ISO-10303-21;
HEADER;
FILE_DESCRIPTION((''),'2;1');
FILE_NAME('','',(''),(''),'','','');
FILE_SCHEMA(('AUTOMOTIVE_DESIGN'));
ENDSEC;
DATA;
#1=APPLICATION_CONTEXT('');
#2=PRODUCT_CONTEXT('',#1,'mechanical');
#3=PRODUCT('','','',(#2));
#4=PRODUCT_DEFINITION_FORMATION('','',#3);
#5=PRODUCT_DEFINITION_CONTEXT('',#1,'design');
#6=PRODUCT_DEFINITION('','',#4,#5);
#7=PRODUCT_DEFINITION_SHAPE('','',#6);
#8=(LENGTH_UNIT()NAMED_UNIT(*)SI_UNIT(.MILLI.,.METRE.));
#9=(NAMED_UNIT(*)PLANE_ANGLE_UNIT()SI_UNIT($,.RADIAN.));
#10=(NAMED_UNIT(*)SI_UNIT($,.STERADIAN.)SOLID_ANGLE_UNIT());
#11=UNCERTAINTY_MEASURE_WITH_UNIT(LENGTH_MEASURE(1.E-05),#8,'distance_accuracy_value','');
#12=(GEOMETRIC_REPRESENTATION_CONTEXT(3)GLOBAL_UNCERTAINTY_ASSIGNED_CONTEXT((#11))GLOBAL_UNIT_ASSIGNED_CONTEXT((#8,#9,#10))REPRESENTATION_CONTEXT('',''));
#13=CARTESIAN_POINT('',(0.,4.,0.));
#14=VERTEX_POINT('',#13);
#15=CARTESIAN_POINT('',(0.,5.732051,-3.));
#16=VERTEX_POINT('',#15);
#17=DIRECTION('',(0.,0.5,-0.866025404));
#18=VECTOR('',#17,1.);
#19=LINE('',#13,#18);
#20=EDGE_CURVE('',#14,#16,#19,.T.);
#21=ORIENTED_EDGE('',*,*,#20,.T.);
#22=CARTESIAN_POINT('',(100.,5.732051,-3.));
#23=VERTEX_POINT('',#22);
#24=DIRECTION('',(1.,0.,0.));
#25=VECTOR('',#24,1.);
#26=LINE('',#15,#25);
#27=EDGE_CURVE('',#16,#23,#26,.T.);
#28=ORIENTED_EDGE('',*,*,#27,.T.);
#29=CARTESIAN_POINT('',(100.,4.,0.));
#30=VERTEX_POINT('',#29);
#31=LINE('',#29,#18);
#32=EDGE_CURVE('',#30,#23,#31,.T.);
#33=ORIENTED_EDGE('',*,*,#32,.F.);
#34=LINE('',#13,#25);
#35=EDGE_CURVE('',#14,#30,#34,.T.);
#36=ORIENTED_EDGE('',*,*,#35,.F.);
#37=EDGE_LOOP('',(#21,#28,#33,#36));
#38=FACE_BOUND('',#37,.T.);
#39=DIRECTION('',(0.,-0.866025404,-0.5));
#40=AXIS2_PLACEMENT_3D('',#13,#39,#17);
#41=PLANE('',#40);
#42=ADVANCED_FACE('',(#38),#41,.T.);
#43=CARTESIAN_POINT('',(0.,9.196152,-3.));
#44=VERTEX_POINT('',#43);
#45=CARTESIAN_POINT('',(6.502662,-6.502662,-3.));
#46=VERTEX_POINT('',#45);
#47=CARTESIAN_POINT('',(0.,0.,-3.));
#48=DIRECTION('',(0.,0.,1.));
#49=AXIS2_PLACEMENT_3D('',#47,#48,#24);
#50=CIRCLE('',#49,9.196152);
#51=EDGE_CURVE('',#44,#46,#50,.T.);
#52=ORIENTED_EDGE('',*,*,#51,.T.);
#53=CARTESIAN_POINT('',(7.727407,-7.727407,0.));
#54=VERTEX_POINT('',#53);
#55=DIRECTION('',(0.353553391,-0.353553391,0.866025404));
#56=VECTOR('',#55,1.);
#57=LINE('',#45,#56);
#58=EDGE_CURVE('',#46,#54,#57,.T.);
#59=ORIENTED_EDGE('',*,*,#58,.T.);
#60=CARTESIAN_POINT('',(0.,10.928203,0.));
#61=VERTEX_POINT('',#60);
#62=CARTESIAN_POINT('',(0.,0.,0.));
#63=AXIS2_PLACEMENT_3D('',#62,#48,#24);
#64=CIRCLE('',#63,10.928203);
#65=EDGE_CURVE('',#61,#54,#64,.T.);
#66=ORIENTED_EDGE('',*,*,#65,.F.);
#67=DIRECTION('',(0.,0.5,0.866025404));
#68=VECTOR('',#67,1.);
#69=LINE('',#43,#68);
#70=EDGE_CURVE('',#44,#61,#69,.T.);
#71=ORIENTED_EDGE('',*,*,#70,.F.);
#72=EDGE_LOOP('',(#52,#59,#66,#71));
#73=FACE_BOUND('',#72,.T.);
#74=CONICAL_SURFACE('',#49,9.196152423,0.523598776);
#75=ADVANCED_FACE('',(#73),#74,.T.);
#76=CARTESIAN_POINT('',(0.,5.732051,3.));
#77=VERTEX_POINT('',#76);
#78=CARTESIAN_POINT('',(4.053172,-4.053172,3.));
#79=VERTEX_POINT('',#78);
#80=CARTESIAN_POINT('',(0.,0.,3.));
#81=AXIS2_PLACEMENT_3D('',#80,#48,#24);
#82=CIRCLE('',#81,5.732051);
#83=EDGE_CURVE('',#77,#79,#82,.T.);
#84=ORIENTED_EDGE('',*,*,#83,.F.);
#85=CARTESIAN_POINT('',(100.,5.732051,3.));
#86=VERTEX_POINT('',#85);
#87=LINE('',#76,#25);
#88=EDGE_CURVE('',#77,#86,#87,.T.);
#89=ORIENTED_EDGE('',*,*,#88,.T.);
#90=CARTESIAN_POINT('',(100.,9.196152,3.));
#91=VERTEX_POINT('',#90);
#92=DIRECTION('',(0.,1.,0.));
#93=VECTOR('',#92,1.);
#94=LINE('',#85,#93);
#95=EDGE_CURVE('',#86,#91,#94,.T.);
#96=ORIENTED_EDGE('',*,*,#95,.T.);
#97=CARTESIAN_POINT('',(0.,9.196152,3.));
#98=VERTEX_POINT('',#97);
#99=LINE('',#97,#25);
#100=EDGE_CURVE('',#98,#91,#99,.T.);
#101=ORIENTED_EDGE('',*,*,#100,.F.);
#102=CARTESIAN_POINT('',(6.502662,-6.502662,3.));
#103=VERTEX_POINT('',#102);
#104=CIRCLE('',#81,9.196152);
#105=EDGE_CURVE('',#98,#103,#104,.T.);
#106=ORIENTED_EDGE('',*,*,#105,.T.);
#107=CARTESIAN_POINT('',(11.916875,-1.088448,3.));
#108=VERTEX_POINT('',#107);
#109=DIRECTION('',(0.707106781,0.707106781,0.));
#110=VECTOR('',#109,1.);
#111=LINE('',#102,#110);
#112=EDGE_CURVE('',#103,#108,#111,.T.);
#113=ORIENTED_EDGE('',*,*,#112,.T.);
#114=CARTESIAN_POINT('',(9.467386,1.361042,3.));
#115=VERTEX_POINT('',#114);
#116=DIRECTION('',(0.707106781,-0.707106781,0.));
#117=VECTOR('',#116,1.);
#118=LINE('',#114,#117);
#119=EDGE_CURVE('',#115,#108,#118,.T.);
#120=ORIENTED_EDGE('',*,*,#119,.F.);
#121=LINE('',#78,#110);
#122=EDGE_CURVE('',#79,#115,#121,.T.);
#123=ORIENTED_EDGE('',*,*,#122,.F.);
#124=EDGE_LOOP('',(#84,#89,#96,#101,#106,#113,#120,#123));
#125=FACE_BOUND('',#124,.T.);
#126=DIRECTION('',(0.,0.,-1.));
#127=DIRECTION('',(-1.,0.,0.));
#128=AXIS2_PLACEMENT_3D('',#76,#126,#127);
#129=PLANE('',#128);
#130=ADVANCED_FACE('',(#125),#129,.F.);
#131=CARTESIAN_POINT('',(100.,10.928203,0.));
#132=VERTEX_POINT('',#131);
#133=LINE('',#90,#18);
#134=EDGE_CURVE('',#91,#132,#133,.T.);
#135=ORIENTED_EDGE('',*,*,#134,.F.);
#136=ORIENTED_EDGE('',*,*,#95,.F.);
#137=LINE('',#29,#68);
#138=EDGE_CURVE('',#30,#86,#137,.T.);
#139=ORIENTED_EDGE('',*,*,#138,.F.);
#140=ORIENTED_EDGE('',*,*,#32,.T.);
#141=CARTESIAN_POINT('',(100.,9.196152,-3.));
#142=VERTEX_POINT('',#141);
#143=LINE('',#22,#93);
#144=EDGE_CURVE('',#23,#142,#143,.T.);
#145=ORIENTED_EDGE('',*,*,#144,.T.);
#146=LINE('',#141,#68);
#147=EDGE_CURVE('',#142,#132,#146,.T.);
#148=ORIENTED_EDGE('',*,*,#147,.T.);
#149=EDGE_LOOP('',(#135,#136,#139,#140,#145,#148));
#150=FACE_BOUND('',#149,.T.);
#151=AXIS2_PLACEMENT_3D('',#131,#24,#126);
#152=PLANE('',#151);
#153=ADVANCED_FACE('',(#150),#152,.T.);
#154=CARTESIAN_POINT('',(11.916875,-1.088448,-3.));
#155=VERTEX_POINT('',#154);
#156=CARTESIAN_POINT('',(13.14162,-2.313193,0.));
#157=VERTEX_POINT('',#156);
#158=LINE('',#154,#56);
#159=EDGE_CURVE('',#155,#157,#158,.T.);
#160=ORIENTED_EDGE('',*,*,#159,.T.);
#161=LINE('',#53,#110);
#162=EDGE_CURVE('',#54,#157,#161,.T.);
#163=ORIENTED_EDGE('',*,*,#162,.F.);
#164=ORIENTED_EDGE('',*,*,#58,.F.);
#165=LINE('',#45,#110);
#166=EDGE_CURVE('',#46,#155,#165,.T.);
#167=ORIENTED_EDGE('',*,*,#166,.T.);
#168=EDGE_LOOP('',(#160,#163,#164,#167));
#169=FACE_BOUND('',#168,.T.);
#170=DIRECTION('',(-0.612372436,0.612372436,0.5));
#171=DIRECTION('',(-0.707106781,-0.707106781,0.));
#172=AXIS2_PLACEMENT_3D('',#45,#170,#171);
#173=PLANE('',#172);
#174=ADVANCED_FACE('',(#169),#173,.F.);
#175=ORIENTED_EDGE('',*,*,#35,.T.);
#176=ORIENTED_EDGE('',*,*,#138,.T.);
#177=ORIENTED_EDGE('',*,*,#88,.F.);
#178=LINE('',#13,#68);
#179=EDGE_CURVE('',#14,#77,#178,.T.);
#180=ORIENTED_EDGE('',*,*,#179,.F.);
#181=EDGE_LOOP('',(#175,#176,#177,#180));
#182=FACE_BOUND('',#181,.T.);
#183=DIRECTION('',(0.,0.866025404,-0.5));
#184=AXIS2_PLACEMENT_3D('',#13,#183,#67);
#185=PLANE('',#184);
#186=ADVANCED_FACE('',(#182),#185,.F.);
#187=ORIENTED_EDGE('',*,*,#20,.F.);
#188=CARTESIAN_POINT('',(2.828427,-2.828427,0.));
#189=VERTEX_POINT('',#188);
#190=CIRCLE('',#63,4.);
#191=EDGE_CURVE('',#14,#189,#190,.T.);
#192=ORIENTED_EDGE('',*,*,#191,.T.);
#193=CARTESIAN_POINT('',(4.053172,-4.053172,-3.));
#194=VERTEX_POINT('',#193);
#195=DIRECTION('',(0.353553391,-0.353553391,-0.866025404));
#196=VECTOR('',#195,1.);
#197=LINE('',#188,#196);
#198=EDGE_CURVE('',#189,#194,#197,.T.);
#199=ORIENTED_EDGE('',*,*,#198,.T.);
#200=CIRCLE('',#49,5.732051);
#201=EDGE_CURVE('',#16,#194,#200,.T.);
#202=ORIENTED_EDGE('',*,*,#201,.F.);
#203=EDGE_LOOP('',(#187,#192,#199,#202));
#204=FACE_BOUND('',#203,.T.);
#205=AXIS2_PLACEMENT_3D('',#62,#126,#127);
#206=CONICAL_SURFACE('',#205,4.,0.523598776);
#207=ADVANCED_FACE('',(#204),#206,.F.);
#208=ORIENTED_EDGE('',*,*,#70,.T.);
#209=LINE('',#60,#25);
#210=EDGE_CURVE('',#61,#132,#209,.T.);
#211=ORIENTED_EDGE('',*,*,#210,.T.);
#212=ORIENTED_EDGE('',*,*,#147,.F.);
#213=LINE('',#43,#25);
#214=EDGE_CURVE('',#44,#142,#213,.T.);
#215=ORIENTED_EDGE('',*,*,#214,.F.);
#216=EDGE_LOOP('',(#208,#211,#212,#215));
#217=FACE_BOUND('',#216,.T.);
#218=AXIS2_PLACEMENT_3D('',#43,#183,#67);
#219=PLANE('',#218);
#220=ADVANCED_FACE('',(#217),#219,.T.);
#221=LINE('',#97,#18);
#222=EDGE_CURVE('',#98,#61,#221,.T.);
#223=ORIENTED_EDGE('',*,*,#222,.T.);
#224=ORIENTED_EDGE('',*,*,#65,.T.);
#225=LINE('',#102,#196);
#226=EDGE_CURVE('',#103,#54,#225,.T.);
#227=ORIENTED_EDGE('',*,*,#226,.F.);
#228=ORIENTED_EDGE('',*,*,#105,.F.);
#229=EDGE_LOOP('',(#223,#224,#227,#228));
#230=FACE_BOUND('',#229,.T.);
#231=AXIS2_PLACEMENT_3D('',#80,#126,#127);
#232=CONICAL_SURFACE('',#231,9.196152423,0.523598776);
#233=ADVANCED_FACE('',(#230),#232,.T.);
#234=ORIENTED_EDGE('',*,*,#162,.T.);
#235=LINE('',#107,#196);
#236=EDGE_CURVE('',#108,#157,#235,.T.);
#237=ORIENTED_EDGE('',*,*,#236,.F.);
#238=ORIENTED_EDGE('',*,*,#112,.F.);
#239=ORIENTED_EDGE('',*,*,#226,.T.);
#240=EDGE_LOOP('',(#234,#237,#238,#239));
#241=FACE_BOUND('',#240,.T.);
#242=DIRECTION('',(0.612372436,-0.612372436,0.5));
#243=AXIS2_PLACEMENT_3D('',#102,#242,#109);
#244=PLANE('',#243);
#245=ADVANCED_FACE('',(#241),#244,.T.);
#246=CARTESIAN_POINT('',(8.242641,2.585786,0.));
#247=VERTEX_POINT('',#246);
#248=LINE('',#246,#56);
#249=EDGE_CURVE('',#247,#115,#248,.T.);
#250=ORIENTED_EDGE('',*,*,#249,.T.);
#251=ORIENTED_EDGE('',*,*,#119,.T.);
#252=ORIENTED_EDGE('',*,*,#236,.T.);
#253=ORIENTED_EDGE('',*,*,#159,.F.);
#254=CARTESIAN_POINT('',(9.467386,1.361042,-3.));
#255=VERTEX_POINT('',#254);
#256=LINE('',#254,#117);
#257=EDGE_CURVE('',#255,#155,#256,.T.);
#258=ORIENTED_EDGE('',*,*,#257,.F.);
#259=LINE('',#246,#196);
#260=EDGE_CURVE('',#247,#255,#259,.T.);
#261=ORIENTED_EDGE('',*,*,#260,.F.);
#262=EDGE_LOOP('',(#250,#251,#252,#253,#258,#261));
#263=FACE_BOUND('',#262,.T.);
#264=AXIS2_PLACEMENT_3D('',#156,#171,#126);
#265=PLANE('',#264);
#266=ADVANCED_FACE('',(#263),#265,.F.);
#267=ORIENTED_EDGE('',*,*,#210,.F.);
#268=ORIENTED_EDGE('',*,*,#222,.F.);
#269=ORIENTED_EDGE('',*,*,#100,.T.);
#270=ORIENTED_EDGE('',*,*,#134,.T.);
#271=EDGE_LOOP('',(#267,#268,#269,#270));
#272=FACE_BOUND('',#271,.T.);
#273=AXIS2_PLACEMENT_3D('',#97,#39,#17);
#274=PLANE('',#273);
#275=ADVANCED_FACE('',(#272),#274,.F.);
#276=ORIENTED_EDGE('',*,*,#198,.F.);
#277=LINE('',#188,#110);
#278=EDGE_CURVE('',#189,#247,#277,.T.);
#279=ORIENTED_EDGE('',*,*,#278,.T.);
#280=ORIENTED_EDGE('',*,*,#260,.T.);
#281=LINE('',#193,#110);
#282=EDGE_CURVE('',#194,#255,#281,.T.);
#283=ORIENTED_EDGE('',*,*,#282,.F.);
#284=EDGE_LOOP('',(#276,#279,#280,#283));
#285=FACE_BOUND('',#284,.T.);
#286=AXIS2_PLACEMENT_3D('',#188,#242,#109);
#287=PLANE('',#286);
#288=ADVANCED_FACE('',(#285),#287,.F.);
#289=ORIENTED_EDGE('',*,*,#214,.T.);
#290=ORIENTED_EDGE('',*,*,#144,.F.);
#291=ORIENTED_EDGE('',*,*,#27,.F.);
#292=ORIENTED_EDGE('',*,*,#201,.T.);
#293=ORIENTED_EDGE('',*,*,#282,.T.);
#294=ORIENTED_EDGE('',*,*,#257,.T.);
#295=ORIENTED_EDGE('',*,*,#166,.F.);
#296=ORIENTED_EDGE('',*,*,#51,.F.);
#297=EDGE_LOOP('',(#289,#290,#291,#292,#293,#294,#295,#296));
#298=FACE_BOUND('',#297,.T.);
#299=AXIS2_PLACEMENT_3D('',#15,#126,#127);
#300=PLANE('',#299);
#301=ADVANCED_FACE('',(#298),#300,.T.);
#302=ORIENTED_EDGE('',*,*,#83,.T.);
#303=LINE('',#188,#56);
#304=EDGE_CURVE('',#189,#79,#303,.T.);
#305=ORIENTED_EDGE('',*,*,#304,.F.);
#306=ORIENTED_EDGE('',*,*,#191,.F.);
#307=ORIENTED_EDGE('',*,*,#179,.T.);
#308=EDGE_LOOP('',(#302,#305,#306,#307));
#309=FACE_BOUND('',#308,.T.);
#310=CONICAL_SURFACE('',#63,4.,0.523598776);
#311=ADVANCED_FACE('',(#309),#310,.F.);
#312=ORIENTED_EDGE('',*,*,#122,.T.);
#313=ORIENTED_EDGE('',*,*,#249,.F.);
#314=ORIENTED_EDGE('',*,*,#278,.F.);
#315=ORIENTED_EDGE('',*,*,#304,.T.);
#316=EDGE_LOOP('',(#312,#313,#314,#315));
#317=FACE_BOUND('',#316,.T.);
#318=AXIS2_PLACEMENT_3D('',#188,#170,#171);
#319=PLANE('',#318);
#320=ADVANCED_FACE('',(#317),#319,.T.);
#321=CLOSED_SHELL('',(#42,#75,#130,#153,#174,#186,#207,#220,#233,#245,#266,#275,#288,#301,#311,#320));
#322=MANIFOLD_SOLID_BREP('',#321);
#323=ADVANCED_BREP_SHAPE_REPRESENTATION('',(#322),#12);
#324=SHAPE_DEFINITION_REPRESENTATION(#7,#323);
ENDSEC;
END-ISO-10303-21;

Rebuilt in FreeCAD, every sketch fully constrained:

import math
import FreeCAD as App
import Part
import Sketcher
Q = App.Units.Quantity


def add_polygon(sketch, points):
    """Adds a closed chain of lines whose ends are joined by coincident constraints."""
    first, n = sketch.GeometryCount, len(points)
    for a, b in zip(points, points[1:] + points[:1]):
        sketch.addGeometry(Part.LineSegment(App.Vector(*a, 0), App.Vector(*b, 0)), False)
    for i in range(n):
        sketch.addConstraint(Sketcher.Constraint("Coincident", first + i, 2, first + (i + 1) % n, 1))

doc = App.newDocument("Part")
body = doc.addObject("PartDesign::Body", "Body")

# Sketch on YZ plane
sketch1 = doc.addObject("Sketcher::SketchObject", "Sketch")
body.addObject(sketch1)
sketch1.AttachmentSupport = (doc.YZ_Plane, [""])
sketch1.MapMode = "FlatFace"
sketch1.AttachmentOffset = App.Placement(App.Vector(0, 0, 100), App.Rotation())
add_polygon(sketch1, [(10.9, 0), (9.2, -3), (5.7, -3), (4, 0), (5.7, 3), (9.2, 3)])  # lines 0-5
sketch1.addConstraint([
    Sketcher.Constraint("Horizontal", 1),
    Sketcher.Constraint("Horizontal", 4),
    Sketcher.Constraint("Symmetric", 1, 2, 3, 2, -1),
    Sketcher.Constraint("PointOnObject", 2, 2, -1),
    Sketcher.Constraint("PointOnObject", 5, 2, -1),
    Sketcher.Constraint("Parallel", 0, 3),
    Sketcher.Constraint("Parallel", 2, 5),
    Sketcher.Constraint("Angle", 0, Q("-120 deg")),
    Sketcher.Constraint("DistanceY", 0, 2, -1, 1, Q("3 mm")),
    Sketcher.Constraint("DistanceX", -1, 1, 2, 2, Q("4 mm")),
    Sketcher.Constraint("DistanceX", 1, 2, 1, 1, Q("3.464102 mm")),
])

# Sketch on XY plane
sketch2 = doc.addObject("Sketcher::SketchObject", "Sketch001")
body.addObject(sketch2)
sketch2.AttachmentSupport = (doc.XY_Plane, [""])
sketch2.MapMode = "FlatFace"
sketch2.addGeometry([
    Part.LineSegment(App.Vector(100, 4, 0), App.Vector(0, 4, 0)),
    Part.ArcOfCircle(Part.Circle(App.Vector(0, 0, 0), App.Vector(0, 0, 1), 4), math.radians(90), math.radians(315)),
    Part.LineSegment(App.Vector(2.8, -2.8, 0), App.Vector(8.2, 2.6, 0)),
], False)
sketch2.addConstraint([
    Sketcher.Constraint("Tangent", 0, 2, 1, 1),
    Sketcher.Constraint("Tangent", 1, 2, 2, 1),
    Sketcher.Constraint("Horizontal", 0),
    Sketcher.Constraint("Coincident", 1, 3, -1, 1),
    Sketcher.Constraint("Radius", 1, Q("4 mm")),
    Sketcher.Constraint("DistanceX", 0, 2, 0, 1, Q("100 mm")),
    Sketcher.Constraint("Angle", 2, Q("45 deg")),
    Sketcher.Constraint("DistanceX", -1, 1, 2, 2, Q("8.242641 mm")),
])
doc.recompute()

additivepipe = doc.addObject("PartDesign::AdditivePipe", "AdditivePipe")
body.addObject(additivepipe)
additivepipe.Profile = sketch1
additivepipe.Spine = (sketch2, ["Edge1", "Edge2", "Edge3"])

doc.recompute()
